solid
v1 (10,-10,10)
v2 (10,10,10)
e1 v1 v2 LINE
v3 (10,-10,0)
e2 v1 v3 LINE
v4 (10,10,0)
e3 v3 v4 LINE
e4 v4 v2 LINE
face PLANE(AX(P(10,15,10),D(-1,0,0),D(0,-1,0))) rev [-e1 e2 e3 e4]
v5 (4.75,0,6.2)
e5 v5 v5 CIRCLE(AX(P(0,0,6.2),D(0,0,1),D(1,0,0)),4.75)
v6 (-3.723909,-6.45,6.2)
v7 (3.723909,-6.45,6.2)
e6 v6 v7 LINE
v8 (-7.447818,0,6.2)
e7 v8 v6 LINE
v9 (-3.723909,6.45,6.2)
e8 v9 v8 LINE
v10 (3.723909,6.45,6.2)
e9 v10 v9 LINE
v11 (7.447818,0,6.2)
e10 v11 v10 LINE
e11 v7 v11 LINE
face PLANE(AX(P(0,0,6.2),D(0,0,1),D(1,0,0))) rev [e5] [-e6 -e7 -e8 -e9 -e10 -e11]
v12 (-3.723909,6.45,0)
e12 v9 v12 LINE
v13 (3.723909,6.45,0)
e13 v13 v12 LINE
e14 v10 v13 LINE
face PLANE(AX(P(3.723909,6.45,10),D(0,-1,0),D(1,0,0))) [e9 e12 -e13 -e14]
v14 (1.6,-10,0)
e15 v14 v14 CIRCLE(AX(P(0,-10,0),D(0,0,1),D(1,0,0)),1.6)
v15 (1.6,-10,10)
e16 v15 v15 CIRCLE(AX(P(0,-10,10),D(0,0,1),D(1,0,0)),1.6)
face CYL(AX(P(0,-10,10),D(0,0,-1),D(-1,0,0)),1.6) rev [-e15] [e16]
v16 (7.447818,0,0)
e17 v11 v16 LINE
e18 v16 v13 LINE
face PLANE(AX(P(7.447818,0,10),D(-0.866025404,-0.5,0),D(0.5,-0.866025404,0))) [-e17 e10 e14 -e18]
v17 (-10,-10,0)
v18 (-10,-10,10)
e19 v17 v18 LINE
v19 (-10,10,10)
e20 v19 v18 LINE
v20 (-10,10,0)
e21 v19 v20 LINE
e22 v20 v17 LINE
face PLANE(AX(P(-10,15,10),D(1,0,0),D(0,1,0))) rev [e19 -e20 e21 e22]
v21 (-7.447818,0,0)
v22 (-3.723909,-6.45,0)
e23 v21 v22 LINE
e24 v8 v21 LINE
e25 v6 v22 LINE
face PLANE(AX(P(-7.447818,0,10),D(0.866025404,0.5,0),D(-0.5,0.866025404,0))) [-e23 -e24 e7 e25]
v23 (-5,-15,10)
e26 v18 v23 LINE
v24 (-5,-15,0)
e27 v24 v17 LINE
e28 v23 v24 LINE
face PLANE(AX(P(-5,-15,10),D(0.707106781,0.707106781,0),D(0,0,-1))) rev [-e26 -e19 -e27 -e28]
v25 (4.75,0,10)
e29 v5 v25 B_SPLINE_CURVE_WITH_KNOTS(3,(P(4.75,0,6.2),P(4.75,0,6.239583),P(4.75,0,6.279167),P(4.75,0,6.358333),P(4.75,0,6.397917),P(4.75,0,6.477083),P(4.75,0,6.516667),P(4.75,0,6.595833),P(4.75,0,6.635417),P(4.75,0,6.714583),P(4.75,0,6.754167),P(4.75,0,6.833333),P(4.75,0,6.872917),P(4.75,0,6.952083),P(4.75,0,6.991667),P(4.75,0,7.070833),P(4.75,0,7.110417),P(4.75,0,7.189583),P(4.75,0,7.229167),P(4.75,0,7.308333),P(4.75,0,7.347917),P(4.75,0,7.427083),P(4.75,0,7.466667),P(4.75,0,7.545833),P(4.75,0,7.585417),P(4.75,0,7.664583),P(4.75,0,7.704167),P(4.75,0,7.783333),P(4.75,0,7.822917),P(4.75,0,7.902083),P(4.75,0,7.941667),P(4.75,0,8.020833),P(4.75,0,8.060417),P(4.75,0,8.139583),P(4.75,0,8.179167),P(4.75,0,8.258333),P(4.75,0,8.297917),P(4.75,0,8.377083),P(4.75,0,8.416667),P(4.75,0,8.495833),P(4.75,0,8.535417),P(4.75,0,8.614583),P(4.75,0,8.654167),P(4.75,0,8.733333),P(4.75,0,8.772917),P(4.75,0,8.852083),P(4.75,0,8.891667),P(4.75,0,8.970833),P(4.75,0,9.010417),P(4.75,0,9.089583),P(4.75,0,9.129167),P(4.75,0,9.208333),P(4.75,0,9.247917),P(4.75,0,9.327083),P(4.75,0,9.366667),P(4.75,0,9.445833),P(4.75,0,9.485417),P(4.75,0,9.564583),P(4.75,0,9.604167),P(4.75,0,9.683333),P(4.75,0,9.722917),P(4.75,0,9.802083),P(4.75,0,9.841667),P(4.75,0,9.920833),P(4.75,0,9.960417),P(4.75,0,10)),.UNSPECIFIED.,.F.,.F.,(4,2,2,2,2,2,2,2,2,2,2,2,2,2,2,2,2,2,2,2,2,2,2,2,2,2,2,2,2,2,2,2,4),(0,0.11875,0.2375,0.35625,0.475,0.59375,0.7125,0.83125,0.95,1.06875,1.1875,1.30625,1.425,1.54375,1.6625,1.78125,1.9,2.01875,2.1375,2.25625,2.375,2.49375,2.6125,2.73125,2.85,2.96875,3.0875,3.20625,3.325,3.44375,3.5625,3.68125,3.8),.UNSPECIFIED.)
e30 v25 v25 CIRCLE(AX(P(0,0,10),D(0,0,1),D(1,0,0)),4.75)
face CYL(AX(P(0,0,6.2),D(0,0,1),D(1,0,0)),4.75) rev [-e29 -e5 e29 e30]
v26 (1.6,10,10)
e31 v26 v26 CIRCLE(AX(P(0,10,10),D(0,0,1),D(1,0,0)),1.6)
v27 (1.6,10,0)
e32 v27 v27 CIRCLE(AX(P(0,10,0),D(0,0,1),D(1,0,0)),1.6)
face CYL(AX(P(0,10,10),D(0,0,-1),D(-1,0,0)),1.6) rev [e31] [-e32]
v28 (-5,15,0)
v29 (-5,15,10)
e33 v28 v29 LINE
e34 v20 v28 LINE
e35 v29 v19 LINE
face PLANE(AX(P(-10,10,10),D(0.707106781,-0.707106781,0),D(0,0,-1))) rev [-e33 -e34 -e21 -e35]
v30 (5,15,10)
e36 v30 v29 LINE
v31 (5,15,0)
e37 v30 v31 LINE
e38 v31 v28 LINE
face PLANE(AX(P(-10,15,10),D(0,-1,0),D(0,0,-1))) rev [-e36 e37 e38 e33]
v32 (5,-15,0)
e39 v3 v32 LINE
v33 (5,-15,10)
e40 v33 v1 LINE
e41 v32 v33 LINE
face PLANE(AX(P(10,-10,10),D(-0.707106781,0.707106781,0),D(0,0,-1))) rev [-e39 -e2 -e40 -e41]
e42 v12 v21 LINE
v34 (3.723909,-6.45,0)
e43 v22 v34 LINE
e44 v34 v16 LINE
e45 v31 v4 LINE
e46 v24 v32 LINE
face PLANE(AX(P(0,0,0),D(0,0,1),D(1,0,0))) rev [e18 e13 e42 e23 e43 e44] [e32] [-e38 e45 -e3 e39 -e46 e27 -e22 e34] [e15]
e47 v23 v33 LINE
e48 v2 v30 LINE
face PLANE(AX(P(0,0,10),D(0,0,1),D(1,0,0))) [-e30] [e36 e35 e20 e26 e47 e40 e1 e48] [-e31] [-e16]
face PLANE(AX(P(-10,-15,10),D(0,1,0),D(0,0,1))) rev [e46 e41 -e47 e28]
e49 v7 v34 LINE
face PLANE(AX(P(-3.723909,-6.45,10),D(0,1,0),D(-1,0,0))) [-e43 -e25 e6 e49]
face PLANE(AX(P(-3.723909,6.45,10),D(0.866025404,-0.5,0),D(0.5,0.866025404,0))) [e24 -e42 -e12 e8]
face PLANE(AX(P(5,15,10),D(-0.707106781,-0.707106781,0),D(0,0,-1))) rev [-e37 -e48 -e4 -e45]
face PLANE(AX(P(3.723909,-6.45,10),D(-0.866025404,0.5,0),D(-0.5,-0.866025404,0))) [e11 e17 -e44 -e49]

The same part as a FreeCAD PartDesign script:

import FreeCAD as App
import Part
import Sketcher

V = App.Vector
Q = App.Units.Quantity


def edges_at(feature, points):
    """Names of the edges that pass closest to the given points."""
    edges = feature.Shape.Edges
    near = lambda p: min(range(len(edges)), key=lambda i: edges[i].distToShape(Part.Vertex(*p))[0])
    return sorted({f"Edge{near(p) + 1}" for p in points})


def add_polygon(sketch, points):
    """Adds a closed chain of lines whose ends are joined by coincident constraints."""
    first, n = sketch.GeometryCount, len(points)
    for a, b in zip(points, points[1:] + points[:1]):
        sketch.addGeometry(Part.LineSegment(App.Vector(*a, 0), App.Vector(*b, 0)), False)
    for i in range(n):
        sketch.addConstraint(Sketcher.Constraint("Coincident", first + i, 2, first + (i + 1) % n, 1))

doc = App.newDocument("Part")
body = doc.addObject("PartDesign::Body", "Body")

sketch1 = doc.addObject("Sketcher::SketchObject", "Sketch")
body.addObject(sketch1)
sketch1.AttachmentSupport = (doc.XY_Plane, [""])
sketch1.MapMode = "FlatFace"
add_polygon(sketch1, [(-10, 15), (-10, -15), (10, -15), (10, 15)])
sketch1.addGeometry(Part.Circle(V(0, -10, 0), V(0, 0, 1), 1.6), False)
add_polygon(sketch1, [(3.7, 6.5), (7.4, 0), (3.7, -6.5), (-3.7, -6.5), (-7.4, 0), (-3.7, 6.5)])
sketch1.addGeometry(Part.Circle(V(0, 10, 0), V(0, 0, 1), 1.6), False)
sketch1.addConstraint([
    Sketcher.Constraint("Vertical", 0),
    Sketcher.Constraint("Horizontal", 1),
    Sketcher.Constraint("Vertical", 2),
    Sketcher.Constraint("Horizontal", 3),
    Sketcher.Constraint("Horizontal", 7),
    Sketcher.Constraint("Horizontal", 10),
    Sketcher.Constraint("Equal", 4, 11),
    Sketcher.Constraint("Symmetric", 4, 3, 11, 3, -1, 1),
    Sketcher.Constraint("Symmetric", 0, 2, 2, 2, -1, 1),
    Sketcher.Constraint("Symmetric", 5, 2, 8, 2, -1, 1),
    Sketcher.Constraint("Symmetric", 6, 2, 9, 2, -1, 1),
    Sketcher.Constraint("PointOnObject", 4, 3, -2),
    Sketcher.Constraint("PointOnObject", 5, 2, -1),
    Sketcher.Constraint("Parallel", 5, 8),
    Sketcher.Constraint("Vertical", 7, 2, 9, 2),
    Sketcher.Constraint("Diameter", 4, Q("3.2 mm")),
    Sketcher.Constraint("DistanceX", 1, 1, 1, 2, Q("20 mm")),
    Sketcher.Constraint("DistanceY", 0, 2, 0, 1, Q("30 mm")),
    Sketcher.Constraint("Angle", 5, Q("-60 deg")),
    Sketcher.Constraint("DistanceY", 4, 3, -1, 1, Q("10 mm")),
    Sketcher.Constraint("DistanceY", 7, 2, 9, 2, Q("12.9 mm")),
    Sketcher.Constraint("DistanceX", 7, 2, 7, 1, Q("7.447818 mm")),
])
pad1 = doc.addObject("PartDesign::Pad", "Pad")
body.addObject(pad1)
pad1.Profile = sketch1
pad1.Length = 10
doc.recompute()

chamfer = doc.addObject("PartDesign::Chamfer", "Chamfer")
body.addObject(chamfer)
chamfer.Base = (pad1, edges_at(pad1, [
    (10, -15, 5),
    (-10, -15, 5),
    (-10, 15, 5),
    (10, 15, 5),
]))
chamfer.Size = 5

sketch2 = doc.addObject("Sketcher::SketchObject", "Sketch001")
body.addObject(sketch2)
sketch2.AttachmentSupport = (doc.XY_Plane, [""])
sketch2.MapMode = "FlatFace"
sketch2.AttachmentOffset = App.Placement(V(0, 0, 10), App.Rotation())
add_polygon(sketch2, [(-7.5, 7.5), (-7.5, -7.5), (7.5, -7.5), (7.5, 7.5)])
sketch2.addGeometry(Part.Circle(V(0, 0, 0), V(0, 0, 1), 4.8), False)
sketch2.addConstraint([
    Sketcher.Constraint("Vertical", 0),
    Sketcher.Constraint("Horizontal", 1),
    Sketcher.Constraint("Vertical", 2),
    Sketcher.Constraint("Horizontal", 3),
    Sketcher.Constraint("Coincident", 4, 3, -1, 1),
    Sketcher.Constraint("Symmetric", 0, 2, 2, 2, -1, 1),
    Sketcher.Constraint("Equal", 3, 0),
    Sketcher.Constraint("Diameter", 4, Q("9.5 mm")),
    Sketcher.Constraint("DistanceX", 1, 1, 1, 2, Q("15 mm")),
])
pad2 = doc.addObject("PartDesign::Pad", "Pad001")
body.addObject(pad2)
pad2.Profile = sketch2
pad2.Length = 3.8
pad2.Reversed = True

doc.recompute()
